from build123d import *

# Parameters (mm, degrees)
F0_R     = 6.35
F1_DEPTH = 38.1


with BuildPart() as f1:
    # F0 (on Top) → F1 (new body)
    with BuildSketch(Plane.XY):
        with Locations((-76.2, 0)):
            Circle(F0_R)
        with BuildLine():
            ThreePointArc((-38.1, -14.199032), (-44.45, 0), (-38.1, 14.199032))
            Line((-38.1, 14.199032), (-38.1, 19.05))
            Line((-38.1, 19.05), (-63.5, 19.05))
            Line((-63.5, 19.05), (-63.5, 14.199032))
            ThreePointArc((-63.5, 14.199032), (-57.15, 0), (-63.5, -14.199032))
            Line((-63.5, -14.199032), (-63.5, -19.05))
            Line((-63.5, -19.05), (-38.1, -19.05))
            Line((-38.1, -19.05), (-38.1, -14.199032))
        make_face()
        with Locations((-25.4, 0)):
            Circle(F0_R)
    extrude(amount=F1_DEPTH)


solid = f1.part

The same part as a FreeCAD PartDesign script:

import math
import FreeCAD as App
import Part
import Sketcher

V = App.Vector
Q = App.Units.Quantity

doc = App.newDocument("Part")
body = doc.addObject("PartDesign::Body", "Body")
body.AllowCompound = True

# Sketch on XY plane
sketch1 = body.newObject("Sketcher::SketchObject", "Sketch")
sketch1.AttachmentSupport = (doc.getObject("XY_Plane"), [""])
sketch1.MapMode = "FlatFace"
sketch1.addGeometry([
    Part.Circle(V(-76.2, 0, 0), V(0, 0, 1), 6.3),  # 0
    Part.ArcOfCircle(Part.Circle(V(-25.4, 0, 0), V(0, 0, 1), 19.1), math.radians(132), math.radians(228)),  # 1
    Part.LineSegment(V(-38.1, 14.2, 0), V(-38.1, 19.1, 0)),  # 2
    Part.LineSegment(V(-38.1, 19.1, 0), V(-63.5, 19.1, 0)),  # 3
    Part.LineSegment(V(-63.5, 19.1, 0), V(-63.5, 14.2, 0)),  # 4
    Part.ArcOfCircle(Part.Circle(V(-76.2, 0, 0), V(0, 0, 1), 19.1), math.radians(-48), math.radians(48)),  # 5
    Part.LineSegment(V(-63.5, -14.2, 0), V(-63.5, -19.1, 0)),  # 6
    Part.LineSegment(V(-63.5, -19.1, 0), V(-38.1, -19.1, 0)),  # 7
    Part.LineSegment(V(-38.1, -19.1, 0), V(-38.1, -14.2, 0)),  # 8
    Part.Circle(V(-25.4, 0, 0), V(0, 0, 1), 6.3),  # 9
], False)
sketch1.addConstraint([
    Sketcher.Constraint("Coincident", 1, 1, 2, 1),
    Sketcher.Constraint("Coincident", 2, 2, 3, 1),
    Sketcher.Constraint("Coincident", 3, 2, 4, 1),
    Sketcher.Constraint("Coincident", 4, 2, 5, 2),
    Sketcher.Constraint("Coincident", 5, 1, 6, 1),
    Sketcher.Constraint("Coincident", 6, 2, 7, 1),
    Sketcher.Constraint("Coincident", 7, 2, 8, 1),
    Sketcher.Constraint("Coincident", 8, 2, 1, 2),
    Sketcher.Constraint("Vertical", 2),
    Sketcher.Constraint("Horizontal", 3),
    Sketcher.Constraint("Vertical", 4),
    Sketcher.Constraint("Vertical", 6),
    Sketcher.Constraint("Horizontal", 7),
    Sketcher.Constraint("Vertical", 8),
    Sketcher.Constraint("Coincident", 5, 3, 0, 3),
    Sketcher.Constraint("Coincident", 9, 3, 1, 3),
    Sketcher.Constraint("Equal", 1, 5),
    Sketcher.Constraint("Equal", 0, 9),
    Sketcher.Constraint("Symmetric", 4, 2, 5, 1, -1),
    Sketcher.Constraint("Symmetric", 2, 2, 7, 2, -1),
    Sketcher.Constraint("PointOnObject", 1, 3, -1),
    Sketcher.Constraint("Horizontal", 1, 1, 4, 2),
    Sketcher.Constraint("Diameter", 0, Q("0.5 in")),
    Sketcher.Constraint("DistanceX", 3, 2, 3, 1, Q("1 in")),
    Sketcher.Constraint("Radius", 1, Q("0.75 in")),
    Sketcher.Constraint("DistanceX", 0, 3, -1, 1, Q("3 in")),
    Sketcher.Constraint("DistanceX", 1, 3, -1, 1, Q("1 in")),
    Sketcher.Constraint("DistanceY", 6, 2, 3, 2, Q("1.5 in")),
])
pad1 = body.newObject("PartDesign::Pad", "Pad")
pad1.Profile = sketch1
pad1.Length = Q("1.5 in")

doc.recompute()
